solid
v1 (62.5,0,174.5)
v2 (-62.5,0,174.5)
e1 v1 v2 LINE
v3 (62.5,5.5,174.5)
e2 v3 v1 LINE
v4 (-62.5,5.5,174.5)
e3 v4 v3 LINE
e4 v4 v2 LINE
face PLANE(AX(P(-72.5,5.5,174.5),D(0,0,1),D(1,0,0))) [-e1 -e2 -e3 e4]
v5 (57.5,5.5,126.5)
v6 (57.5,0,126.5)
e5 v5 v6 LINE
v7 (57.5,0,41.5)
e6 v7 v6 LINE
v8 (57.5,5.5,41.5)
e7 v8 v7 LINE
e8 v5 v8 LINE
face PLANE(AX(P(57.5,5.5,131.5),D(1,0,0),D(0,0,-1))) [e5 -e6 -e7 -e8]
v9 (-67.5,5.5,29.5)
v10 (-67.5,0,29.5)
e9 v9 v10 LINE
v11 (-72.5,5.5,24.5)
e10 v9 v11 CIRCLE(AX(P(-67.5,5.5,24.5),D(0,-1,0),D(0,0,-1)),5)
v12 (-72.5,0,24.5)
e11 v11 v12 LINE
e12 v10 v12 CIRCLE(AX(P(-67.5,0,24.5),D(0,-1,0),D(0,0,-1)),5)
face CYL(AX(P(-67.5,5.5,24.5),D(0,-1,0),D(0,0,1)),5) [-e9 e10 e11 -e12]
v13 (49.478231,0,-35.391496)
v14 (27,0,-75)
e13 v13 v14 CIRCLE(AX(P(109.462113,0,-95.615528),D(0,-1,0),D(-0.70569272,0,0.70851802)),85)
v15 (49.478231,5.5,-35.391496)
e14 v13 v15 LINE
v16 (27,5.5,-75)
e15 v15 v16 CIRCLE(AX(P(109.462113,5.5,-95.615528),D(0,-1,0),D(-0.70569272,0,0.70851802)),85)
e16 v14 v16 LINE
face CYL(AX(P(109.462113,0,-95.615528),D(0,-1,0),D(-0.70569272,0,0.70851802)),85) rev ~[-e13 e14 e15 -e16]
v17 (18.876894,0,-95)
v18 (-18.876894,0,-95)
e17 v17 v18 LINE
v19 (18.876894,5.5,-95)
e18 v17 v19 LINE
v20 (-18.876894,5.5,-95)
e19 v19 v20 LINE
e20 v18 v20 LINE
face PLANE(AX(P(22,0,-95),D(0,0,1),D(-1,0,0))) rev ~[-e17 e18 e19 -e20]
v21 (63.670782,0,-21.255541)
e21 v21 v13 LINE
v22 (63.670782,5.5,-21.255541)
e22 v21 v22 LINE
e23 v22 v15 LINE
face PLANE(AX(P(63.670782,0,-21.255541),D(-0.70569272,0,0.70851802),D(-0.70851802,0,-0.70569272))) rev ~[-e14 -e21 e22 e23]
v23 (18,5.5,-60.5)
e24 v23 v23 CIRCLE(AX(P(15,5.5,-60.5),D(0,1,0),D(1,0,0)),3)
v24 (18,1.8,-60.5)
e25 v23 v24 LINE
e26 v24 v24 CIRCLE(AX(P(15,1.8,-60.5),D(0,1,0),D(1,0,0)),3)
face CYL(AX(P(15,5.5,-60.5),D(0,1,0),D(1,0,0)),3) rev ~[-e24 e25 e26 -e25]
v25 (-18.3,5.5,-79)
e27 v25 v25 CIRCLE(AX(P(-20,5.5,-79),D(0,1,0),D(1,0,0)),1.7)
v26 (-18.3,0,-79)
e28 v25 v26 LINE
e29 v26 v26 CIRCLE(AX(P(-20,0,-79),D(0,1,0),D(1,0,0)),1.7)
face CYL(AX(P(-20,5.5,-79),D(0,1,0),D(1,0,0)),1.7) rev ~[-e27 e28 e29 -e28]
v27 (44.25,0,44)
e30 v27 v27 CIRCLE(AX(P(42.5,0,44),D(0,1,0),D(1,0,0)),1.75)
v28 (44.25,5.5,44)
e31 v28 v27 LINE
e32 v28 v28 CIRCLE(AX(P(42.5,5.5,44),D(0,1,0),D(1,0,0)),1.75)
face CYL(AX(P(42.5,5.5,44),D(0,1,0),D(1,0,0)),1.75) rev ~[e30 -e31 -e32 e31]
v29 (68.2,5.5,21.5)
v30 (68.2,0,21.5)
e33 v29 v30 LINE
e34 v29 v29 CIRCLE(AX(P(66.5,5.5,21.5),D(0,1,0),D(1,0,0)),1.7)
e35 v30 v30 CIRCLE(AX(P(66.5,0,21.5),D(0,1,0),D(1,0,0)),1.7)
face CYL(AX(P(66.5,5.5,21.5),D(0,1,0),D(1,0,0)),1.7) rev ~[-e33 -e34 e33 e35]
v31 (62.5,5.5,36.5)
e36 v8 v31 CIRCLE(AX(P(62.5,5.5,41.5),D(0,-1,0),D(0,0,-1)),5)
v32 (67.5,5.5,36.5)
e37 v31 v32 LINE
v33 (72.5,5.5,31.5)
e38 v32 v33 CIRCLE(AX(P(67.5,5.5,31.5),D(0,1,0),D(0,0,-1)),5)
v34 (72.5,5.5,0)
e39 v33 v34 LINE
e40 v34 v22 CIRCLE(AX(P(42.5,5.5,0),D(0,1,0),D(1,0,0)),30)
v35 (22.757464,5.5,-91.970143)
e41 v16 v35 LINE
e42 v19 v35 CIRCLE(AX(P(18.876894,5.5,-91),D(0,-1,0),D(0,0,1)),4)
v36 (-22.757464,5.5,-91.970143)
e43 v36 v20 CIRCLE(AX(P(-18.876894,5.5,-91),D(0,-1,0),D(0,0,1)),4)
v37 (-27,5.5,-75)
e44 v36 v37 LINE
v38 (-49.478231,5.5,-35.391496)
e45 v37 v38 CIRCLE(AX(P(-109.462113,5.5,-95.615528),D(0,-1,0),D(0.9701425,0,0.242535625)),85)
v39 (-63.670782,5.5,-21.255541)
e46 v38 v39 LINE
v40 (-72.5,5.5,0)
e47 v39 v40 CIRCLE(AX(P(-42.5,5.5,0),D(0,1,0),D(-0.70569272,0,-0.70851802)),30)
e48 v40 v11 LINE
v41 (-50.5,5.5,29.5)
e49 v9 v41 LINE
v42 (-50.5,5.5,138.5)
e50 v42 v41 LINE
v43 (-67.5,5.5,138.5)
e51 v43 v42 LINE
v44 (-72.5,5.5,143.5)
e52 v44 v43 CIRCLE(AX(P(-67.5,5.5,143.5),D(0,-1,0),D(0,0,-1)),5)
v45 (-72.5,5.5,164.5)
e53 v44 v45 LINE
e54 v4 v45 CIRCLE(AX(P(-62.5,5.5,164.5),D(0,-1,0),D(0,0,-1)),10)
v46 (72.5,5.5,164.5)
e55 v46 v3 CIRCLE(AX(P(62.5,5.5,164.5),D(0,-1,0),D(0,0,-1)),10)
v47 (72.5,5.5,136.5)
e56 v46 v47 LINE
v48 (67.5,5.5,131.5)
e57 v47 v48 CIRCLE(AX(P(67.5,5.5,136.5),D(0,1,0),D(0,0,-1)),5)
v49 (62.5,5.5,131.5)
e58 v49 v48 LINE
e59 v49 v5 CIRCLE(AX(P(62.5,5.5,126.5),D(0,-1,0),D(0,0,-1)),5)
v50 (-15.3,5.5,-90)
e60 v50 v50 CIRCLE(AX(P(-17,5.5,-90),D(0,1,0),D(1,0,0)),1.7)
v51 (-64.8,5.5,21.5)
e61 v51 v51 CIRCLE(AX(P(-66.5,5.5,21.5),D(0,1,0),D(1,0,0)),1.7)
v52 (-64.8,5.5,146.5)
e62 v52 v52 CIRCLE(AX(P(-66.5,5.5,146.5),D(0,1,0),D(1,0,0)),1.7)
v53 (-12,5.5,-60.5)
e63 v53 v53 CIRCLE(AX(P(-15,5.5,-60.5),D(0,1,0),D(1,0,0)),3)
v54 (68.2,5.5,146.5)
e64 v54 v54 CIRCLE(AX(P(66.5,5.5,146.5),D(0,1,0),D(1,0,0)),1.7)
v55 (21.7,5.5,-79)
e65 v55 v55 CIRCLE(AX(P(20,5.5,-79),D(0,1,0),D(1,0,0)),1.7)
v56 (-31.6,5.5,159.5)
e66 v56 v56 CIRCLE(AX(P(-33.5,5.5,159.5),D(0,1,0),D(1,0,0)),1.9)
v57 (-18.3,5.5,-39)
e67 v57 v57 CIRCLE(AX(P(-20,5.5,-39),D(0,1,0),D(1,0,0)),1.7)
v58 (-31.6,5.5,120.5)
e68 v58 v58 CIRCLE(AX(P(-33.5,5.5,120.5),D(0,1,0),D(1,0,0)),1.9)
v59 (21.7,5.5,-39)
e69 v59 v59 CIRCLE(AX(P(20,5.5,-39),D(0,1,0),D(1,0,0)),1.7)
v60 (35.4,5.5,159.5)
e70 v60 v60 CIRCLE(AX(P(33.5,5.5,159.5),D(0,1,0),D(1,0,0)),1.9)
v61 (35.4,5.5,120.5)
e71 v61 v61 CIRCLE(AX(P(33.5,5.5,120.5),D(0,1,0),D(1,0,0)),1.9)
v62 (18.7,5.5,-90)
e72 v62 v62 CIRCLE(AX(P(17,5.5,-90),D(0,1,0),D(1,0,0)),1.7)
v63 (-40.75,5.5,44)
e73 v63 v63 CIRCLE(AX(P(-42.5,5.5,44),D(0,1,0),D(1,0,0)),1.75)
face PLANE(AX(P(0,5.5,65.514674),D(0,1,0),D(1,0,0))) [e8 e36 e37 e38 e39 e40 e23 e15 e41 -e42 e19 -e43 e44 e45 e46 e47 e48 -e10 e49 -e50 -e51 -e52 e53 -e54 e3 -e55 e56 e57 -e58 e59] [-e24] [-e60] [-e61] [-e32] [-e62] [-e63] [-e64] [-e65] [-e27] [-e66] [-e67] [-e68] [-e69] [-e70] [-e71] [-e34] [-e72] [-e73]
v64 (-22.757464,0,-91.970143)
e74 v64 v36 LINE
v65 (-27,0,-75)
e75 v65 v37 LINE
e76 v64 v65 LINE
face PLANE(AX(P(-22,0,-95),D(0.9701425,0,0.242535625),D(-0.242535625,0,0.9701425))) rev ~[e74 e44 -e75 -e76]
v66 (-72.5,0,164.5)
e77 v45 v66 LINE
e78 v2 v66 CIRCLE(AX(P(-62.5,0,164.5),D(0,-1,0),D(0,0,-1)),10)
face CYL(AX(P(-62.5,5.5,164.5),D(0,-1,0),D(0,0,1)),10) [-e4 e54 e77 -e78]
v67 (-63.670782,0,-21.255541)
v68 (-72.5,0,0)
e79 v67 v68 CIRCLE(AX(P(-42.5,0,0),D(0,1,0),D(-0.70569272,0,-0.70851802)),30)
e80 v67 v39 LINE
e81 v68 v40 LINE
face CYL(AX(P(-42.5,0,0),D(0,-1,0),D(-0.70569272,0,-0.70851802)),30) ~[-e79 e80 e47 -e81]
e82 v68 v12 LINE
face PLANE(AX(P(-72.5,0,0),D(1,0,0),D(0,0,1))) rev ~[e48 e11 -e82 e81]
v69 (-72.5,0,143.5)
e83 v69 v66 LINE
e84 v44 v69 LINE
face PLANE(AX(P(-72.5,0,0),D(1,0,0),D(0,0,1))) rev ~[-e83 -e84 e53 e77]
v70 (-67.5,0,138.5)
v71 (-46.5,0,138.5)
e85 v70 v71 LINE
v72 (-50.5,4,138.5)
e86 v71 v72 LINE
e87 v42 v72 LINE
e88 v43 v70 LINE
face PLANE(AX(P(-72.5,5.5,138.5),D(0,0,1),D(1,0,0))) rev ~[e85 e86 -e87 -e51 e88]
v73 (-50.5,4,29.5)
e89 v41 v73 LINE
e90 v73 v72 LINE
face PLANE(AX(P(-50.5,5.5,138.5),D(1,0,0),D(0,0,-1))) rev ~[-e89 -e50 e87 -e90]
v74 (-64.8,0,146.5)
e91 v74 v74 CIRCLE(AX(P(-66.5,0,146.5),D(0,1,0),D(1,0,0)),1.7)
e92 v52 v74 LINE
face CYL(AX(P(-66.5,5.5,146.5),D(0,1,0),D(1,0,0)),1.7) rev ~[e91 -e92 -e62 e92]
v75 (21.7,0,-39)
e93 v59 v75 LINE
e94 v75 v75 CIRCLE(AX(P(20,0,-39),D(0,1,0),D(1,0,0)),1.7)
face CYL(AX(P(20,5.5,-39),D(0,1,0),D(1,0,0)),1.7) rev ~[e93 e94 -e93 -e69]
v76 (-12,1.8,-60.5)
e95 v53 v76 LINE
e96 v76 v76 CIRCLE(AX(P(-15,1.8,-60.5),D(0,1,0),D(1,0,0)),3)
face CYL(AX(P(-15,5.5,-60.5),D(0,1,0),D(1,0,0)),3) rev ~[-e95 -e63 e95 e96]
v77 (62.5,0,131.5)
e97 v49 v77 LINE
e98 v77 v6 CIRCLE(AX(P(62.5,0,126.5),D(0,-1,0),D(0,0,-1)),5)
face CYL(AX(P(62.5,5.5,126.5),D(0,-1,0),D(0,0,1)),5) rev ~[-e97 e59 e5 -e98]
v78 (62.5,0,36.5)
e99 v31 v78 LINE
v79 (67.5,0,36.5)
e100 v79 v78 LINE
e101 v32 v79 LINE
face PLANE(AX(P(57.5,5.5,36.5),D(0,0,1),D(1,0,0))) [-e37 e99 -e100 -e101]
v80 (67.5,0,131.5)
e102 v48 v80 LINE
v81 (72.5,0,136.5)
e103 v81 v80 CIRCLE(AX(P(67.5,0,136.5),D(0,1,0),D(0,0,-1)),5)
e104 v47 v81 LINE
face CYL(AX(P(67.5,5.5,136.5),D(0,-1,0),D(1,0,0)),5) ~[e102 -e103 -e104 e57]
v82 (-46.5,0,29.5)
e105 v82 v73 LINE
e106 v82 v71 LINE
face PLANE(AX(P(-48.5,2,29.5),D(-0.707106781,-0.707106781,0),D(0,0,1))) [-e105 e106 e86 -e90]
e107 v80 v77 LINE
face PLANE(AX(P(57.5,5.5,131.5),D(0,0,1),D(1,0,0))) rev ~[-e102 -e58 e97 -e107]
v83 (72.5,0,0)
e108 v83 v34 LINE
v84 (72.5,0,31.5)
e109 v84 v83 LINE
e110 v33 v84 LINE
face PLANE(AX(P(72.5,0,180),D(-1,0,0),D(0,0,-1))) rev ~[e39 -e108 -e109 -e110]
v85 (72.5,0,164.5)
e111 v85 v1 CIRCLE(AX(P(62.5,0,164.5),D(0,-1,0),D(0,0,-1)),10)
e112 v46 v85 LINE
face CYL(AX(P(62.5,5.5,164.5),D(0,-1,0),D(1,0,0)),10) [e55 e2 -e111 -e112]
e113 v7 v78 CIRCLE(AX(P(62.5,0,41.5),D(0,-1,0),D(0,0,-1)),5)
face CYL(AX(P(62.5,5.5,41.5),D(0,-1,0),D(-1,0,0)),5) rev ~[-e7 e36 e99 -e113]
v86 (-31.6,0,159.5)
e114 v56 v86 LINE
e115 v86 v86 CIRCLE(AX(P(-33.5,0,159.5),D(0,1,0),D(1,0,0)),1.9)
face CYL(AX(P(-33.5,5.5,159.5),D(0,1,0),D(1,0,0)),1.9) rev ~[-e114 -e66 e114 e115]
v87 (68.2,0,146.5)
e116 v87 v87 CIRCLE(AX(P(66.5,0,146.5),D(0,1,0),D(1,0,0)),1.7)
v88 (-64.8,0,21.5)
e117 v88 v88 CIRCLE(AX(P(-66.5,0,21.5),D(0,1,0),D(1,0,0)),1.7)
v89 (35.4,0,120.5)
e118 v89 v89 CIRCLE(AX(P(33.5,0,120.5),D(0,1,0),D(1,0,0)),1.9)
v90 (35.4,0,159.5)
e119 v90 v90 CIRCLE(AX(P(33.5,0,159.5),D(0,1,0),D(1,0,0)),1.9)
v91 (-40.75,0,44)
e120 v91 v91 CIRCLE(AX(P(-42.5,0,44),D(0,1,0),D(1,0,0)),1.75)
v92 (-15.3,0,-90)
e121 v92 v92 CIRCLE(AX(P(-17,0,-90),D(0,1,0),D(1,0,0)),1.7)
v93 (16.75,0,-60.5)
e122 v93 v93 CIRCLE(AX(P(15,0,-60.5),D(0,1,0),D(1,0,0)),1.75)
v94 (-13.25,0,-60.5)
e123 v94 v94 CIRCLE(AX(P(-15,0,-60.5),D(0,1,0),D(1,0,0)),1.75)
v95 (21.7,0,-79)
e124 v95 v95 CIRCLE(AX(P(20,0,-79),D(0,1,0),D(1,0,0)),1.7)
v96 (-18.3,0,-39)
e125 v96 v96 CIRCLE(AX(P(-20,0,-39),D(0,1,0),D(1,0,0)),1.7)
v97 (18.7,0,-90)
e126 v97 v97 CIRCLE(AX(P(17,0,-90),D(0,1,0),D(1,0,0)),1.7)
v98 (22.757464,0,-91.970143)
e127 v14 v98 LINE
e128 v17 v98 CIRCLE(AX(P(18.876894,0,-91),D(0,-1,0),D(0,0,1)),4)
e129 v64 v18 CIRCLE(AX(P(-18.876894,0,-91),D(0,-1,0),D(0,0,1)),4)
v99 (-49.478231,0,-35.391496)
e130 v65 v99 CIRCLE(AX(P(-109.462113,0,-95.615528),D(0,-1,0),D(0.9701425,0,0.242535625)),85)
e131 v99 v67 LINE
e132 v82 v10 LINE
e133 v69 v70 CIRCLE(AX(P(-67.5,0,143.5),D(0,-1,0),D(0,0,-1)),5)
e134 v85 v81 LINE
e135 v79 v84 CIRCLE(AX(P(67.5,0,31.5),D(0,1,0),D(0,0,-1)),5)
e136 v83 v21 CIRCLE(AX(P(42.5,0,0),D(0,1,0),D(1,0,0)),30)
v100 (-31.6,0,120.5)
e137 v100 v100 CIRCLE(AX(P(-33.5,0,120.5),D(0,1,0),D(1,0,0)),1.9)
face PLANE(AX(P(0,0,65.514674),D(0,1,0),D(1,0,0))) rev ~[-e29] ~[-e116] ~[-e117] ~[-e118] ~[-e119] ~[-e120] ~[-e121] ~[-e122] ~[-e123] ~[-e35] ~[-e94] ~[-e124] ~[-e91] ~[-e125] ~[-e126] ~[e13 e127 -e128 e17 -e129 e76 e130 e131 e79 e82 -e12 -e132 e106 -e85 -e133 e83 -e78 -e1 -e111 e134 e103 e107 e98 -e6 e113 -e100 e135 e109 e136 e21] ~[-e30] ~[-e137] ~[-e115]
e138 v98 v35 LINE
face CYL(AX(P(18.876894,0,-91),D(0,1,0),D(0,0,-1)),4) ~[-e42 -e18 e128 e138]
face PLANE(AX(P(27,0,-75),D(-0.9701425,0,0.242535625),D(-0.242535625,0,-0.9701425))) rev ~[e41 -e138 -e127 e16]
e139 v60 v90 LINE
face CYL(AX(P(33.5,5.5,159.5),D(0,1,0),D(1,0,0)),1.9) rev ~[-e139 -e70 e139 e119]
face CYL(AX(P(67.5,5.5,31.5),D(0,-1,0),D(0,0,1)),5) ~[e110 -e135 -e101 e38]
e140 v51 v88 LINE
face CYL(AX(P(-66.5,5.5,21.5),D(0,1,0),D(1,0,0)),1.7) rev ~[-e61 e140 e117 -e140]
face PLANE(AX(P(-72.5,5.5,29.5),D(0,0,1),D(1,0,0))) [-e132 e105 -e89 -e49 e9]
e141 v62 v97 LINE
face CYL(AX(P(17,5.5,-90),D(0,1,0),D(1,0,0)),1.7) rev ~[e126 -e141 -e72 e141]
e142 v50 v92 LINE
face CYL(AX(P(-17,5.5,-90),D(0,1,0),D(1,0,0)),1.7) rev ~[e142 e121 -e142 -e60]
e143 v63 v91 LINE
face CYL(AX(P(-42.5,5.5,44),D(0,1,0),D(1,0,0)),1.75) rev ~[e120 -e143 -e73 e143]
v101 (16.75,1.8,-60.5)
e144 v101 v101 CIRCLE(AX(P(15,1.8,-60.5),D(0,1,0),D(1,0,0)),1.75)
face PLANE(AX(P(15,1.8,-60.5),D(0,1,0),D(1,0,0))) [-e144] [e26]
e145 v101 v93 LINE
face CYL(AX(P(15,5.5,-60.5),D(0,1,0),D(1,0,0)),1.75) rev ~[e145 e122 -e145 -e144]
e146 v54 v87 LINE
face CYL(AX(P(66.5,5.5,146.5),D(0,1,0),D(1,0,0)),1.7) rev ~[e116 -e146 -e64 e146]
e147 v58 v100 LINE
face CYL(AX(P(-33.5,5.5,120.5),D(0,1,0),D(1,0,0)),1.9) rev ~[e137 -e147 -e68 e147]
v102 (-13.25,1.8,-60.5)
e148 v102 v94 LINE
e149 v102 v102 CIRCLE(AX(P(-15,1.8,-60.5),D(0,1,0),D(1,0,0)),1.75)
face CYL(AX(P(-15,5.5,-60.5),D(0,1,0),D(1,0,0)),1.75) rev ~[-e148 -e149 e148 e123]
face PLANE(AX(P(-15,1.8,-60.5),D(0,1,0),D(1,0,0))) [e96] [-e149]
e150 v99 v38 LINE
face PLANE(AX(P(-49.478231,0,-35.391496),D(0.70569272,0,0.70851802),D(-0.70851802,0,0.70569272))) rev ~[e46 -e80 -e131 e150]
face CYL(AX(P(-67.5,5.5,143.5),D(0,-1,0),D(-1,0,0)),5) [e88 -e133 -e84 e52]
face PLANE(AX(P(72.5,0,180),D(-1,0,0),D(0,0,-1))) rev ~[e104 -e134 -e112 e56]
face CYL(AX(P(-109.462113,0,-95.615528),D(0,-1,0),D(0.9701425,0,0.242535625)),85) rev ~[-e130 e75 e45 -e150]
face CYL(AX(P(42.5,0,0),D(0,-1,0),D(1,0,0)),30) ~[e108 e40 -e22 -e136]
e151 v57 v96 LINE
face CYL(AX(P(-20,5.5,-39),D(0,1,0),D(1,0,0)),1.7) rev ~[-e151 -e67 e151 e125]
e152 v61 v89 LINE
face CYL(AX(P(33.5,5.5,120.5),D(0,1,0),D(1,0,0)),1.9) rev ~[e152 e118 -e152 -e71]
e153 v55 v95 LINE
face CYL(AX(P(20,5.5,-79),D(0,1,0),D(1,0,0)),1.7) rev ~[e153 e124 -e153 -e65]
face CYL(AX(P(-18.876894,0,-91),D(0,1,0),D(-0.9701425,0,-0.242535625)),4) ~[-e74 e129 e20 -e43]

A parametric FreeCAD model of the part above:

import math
import FreeCAD as App
import Part
import Sketcher


def edges_at(feature, points):
    """Names of the edges that pass closest to the given points."""
    edges = feature.Shape.Edges
    near = lambda p: min(range(len(edges)), key=lambda i: edges[i].distToShape(Part.Vertex(*p))[0])
    return sorted({f"Edge{near(p) + 1}" for p in points})


def add_polygon(sketch, points):
    """Adds a closed chain of lines whose ends are joined by coincident constraints."""
    first, n = sketch.GeometryCount, len(points)
    for a, b in zip(points, points[1:] + points[:1]):
        sketch.addGeometry(Part.LineSegment(App.Vector(*a, 0), App.Vector(*b, 0)), False)
    for i in range(n):
        sketch.addConstraint(Sketcher.Constraint("Coincident", first + i, 2, first + (i + 1) % n, 1))

doc = App.newDocument("Part")
body = doc.addObject("PartDesign::Body", "Body")

# Sketch on XZ plane
sketch1 = doc.addObject("Sketcher::SketchObject", "Sketch")
body.addObject(sketch1)
sketch1.AttachmentSupport = (doc.XZ_Plane, [""])
sketch1.MapMode = "FlatFace"
sketch1.addGeometry([
    Part.LineSegment(App.Vector(-72.5, 0, 0), App.Vector(-72.5, 180, 0)),  # 0
    Part.ArcOfCircle(Part.Circle(App.Vector(-62.5, 180, 0), App.Vector(0, 0, 1), 10), math.radians(90), math.radians(180)),  # 1
    Part.LineSegment(App.Vector(-62.5, 190, 0), App.Vector(-49.196112, 190, 0)),  # 2
    Part.ArcOfCircle(Part.Circle(App.Vector(-49.196112, 195, 0), App.Vector(0, 0, 1), 5), math.radians(-90), math.radians(-52.52382)),  # 3
    Part.LineSegment(App.Vector(-46.153955, 191.031968, 0), App.Vector(-18.846045, 211.968032, 0)),  # 4
    Part.ArcOfCircle(Part.Circle(App.Vector(-15.803888, 208, 0), App.Vector(0, 0, 1), 5), math.radians(90), math.radians(127.47618)),  # 5
    Part.LineSegment(App.Vector(-15.803888, 213, 0), App.Vector(15.803888, 213, 0)),  # 6
    Part.ArcOfCircle(Part.Circle(App.Vector(15.803888, 208, 0), App.Vector(0, 0, 1), 5), math.radians(52.52382), math.radians(90)),  # 7
    Part.LineSegment(App.Vector(18.846045, 211.968032, 0), App.Vector(46.153955, 191.031968, 0)),  # 8
    Part.ArcOfCircle(Part.Circle(App.Vector(49.196112, 195, 0), App.Vector(0, 0, 1), 5), math.radians(-127.47618), math.radians(-90)),  # 9
    Part.LineSegment(App.Vector(49.196112, 190, 0), App.Vector(62.5, 190, 0)),  # 10
    Part.ArcOfCircle(Part.Circle(App.Vector(62.5, 180, 0), App.Vector(0, 0, 1), 10), math.radians(0), math.radians(90)),  # 11
    Part.LineSegment(App.Vector(72.5, 180, 0), App.Vector(72.5, 0, 0)),  # 12
    Part.ArcOfCircle(Part.Circle(App.Vector(42.5, 0, 0), App.Vector(0, 0, 1), 30), math.radians(-45.114465), math.radians(0)),  # 13
    Part.LineSegment(App.Vector(63.670782, -21.255541, 0), App.Vector(49.478231, -35.391496, 0)),  # 14
    Part.ArcOfCircle(Part.Circle(App.Vector(109.462113, -95.615528, 0), App.Vector(0, 0, 1), 85), math.radians(134.885535), math.radians(165.963757)),  # 15
    Part.LineSegment(App.Vector(27, -75, 0), App.Vector(22, -95, 0)),  # 16
    Part.LineSegment(App.Vector(22, -95, 0), App.Vector(-22, -95, 0)),  # 17
    Part.LineSegment(App.Vector(-22, -95, 0), App.Vector(-27, -75, 0)),  # 18
    Part.ArcOfCircle(Part.Circle(App.Vector(-109.462113, -95.615528, 0), App.Vector(0, 0, 1), 85), math.radians(14.036243), math.radians(45.114465)),  # 19
    Part.LineSegment(App.Vector(-49.478231, -35.391496, 0), App.Vector(-63.670782, -21.255541, 0)),  # 20
    Part.ArcOfCircle(Part.Circle(App.Vector(-42.5, 0, 0), App.Vector(0, 0, 1), 30), math.radians(180), math.radians(225.114465)),  # 21
], False)
sketch1.addConstraint([
    Sketcher.Constraint("Tangent", 0, 2, 1, 2),
    Sketcher.Constraint("Tangent", 1, 1, 2, 1),
    Sketcher.Constraint("Tangent", 2, 2, 3, 1),
    Sketcher.Constraint("Tangent", 3, 2, 4, 1),
    Sketcher.Constraint("Tangent", 4, 2, 5, 2),
    Sketcher.Constraint("Tangent", 5, 1, 6, 1),
    Sketcher.Constraint("Tangent", 6, 2, 7, 2),
    Sketcher.Constraint("Tangent", 7, 1, 8, 1),
    Sketcher.Constraint("Tangent", 8, 2, 9, 1),
    Sketcher.Constraint("Tangent", 9, 2, 10, 1),
    Sketcher.Constraint("Tangent", 10, 2, 11, 2),
    Sketcher.Constraint("Tangent", 11, 1, 12, 1),
    Sketcher.Constraint("Tangent", 12, 2, 13, 2),
    Sketcher.Constraint("Tangent", 13, 1, 14, 1),
    Sketcher.Constraint("Tangent", 14, 2, 15, 1),
    Sketcher.Constraint("Tangent", 15, 2, 16, 1),
    Sketcher.Constraint("Coincident", 16, 2, 17, 1),
    Sketcher.Constraint("Coincident", 17, 2, 18, 1),
    Sketcher.Constraint("Tangent", 18, 2, 19, 1),
    Sketcher.Constraint("Tangent", 19, 2, 20, 1),
    Sketcher.Constraint("Tangent", 20, 2, 21, 2),
    Sketcher.Constraint("Tangent", 21, 1, 0, 1),
    Sketcher.Constraint("Vertical", 0),
    Sketcher.Constraint("Horizontal", 2),
    Sketcher.Constraint("Horizontal", 6),
    Sketcher.Constraint("Horizontal", 10),
    Sketcher.Constraint("Vertical", 12),
    Sketcher.Constraint("Horizontal", 17),
    Sketcher.Constraint("Equal", 3, 5),
    Sketcher.Constraint("Equal", 5, 7),
    Sketcher.Constraint("Equal", 7, 9),
    Sketcher.Constraint("Equal", 1, 11),
    Sketcher.Constraint("Equal", 15, 19),
    Sketcher.Constraint("Equal", 13, 21),
    Sketcher.Constraint("Symmetric", 13, 3, 21, 3, -1, 1),
    Sketcher.Constraint("Symmetric", 3, 3, 9, 3, -2),
    Sketcher.Constraint("Symmetric", 15, 3, 19, 3, -2),
    Sketcher.Constraint("PointOnObject", 13, 3, -1),
    Sketcher.Constraint("Horizontal", 4, 2, 7, 1),
    Sketcher.Constraint("Horizontal", 15, 2, 18, 2),
    Sketcher.Constraint("Radius", 1, 10.0),
    Sketcher.Constraint("Radius", 3, 5.0),
    Sketcher.Constraint("Radius", 13, 30.0),
    Sketcher.Constraint("Radius", 15, 85.0),
    Sketcher.Constraint("DistanceX", 17, 2, 17, 1, 44.0),
    Sketcher.Constraint("DistanceY", 0, 1, 0, 2, 180.0),
    Sketcher.Constraint("DistanceY", -1, 1, 5, 3, 208.0),
    Sketcher.Constraint("DistanceX", -1, 1, 15, 2, 27.0),
    Sketcher.Constraint("DistanceY", 15, 2, -1, 1, 75.0),
    Sketcher.Constraint("DistanceY", 16, 2, -1, 1, 95.0),
    Sketcher.Constraint("DistanceX", 3, 3, 7, 3, 65.0),
    Sketcher.Constraint("DistanceX", 1, 3, 11, 3, 125.0),
    Sketcher.Constraint("DistanceX", 9, 3, 15, 3, 60.266),
])
pad1 = doc.addObject("PartDesign::Pad", "Pad")
body.addObject(pad1)
pad1.Profile = sketch1
pad1.Length = 5.5
pad1.Reversed = True

# Sketch on XZ plane
sketch2 = doc.addObject("Sketcher::SketchObject", "Sketch001")
body.addObject(sketch2)
sketch2.AttachmentSupport = (doc.XZ_Plane, [""])
sketch2.MapMode = "FlatFace"
sketch2.AttachmentOffset = App.Placement(App.Vector(0, 0, -5.5), App.Rotation())
sketch2.addGeometry(Part.Circle(App.Vector(17, -90, 0), App.Vector(0, 0, 1), 1.7), False)
sketch2.addConstraint([
    Sketcher.Constraint("Diameter", 0, 3.4),
    Sketcher.Constraint("DistanceX", -1, 1, 0, 3, 17.0),
    Sketcher.Constraint("DistanceY", 0, 3, -1, 1, 90.0),
])
pocket1 = doc.addObject("PartDesign::Pocket", "Pocket")
body.addObject(pocket1)
pocket1.Profile = sketch2
pocket1.Type = "UpToFirst"
pocket1.Reversed = True

# Sketch on XZ plane
sketch3 = doc.addObject("Sketcher::SketchObject", "Sketch002")
body.addObject(sketch3)
sketch3.AttachmentSupport = (doc.XZ_Plane, [""])
sketch3.MapMode = "FlatFace"
sketch3.AttachmentOffset = App.Placement(App.Vector(0, 0, -5.5), App.Rotation())
sketch3.addGeometry(Part.Circle(App.Vector(66.5, 146.5, 0), App.Vector(0, 0, 1), 1.7), False)
sketch3.addConstraint([
    Sketcher.Constraint("Diameter", 0, 3.4),
    Sketcher.Constraint("DistanceX", -1, 1, 0, 3, 66.5),
    Sketcher.Constraint("DistanceY", -1, 1, 0, 3, 146.5),
])
pocket2 = doc.addObject("PartDesign::Pocket", "Pocket001")
body.addObject(pocket2)
pocket2.Profile = sketch3
pocket2.Type = "UpToFirst"
pocket2.Reversed = True

# Sketch on XZ plane
sketch4 = doc.addObject("Sketcher::SketchObject", "Sketch003")
body.addObject(sketch4)
sketch4.AttachmentSupport = (doc.XZ_Plane, [""])
sketch4.MapMode = "FlatFace"
sketch4.AttachmentOffset = App.Placement(App.Vector(0, 0, -5.5), App.Rotation())
sketch4.addGeometry(Part.Circle(App.Vector(66.5, 116.5, 0), App.Vector(0, 0, 1), 1.7), False)
sketch4.addConstraint([
    Sketcher.Constraint("Diameter", 0, 3.4),
    Sketcher.Constraint("DistanceX", -1, 1, 0, 3, 66.5),
    Sketcher.Constraint("DistanceY", -1, 1, 0, 3, 116.5),
])
pocket3 = doc.addObject("PartDesign::Pocket", "Pocket002")
body.addObject(pocket3)
pocket3.Profile = sketch4
pocket3.Type = "UpToFirst"
pocket3.Reversed = True

# Sketch on XZ plane
sketch5 = doc.addObject("Sketcher::SketchObject", "Sketch004")
body.addObject(sketch5)
sketch5.AttachmentSupport = (doc.XZ_Plane, [""])
sketch5.MapMode = "FlatFace"
sketch5.AttachmentOffset = App.Placement(App.Vector(0, 0, -5.5), App.Rotation())
sketch5.addGeometry(Part.Circle(App.Vector(66.5, 51.5, 0), App.Vector(0, 0, 1), 1.7), False)
sketch5.addConstraint([
    Sketcher.Constraint("Diameter", 0, 3.4),
    Sketcher.Constraint("DistanceX", -1, 1, 0, 3, 66.5),
    Sketcher.Constraint("DistanceY", -1, 1, 0, 3, 51.5),
])
pocket4 = doc.addObject("PartDesign::Pocket", "Pocket003")
body.addObject(pocket4)
pocket4.Profile = sketch5
pocket4.Type = "UpToFirst"
pocket4.Reversed = True

# Sketch on XZ plane
sketch6 = doc.addObject("Sketcher::SketchObject", "Sketch005")
body.addObject(sketch6)
sketch6.AttachmentSupport = (doc.XZ_Plane, [""])
sketch6.MapMode = "FlatFace"
sketch6.AttachmentOffset = App.Placement(App.Vector(0, 0, -5.5), App.Rotation())
sketch6.addGeometry(Part.Circle(App.Vector(66.5, 21.5, 0), App.Vector(0, 0, 1), 1.7), False)
sketch6.addConstraint([
    Sketcher.Constraint("Diameter", 0, 3.4),
    Sketcher.Constraint("DistanceX", -1, 1, 0, 3, 66.5),
    Sketcher.Constraint("DistanceY", -1, 1, 0, 3, 21.5),
])
pocket5 = doc.addObject("PartDesign::Pocket", "Pocket004")
body.addObject(pocket5)
pocket5.Profile = sketch6
pocket5.Type = "UpToFirst"
pocket5.Reversed = True

# Sketch on XZ plane
sketch7 = doc.addObject("Sketcher::SketchObject", "Sketch006")
body.addObject(sketch7)
sketch7.AttachmentSupport = (doc.XZ_Plane, [""])
sketch7.MapMode = "FlatFace"
sketch7.AttachmentOffset = App.Placement(App.Vector(0, 0, -5.5), App.Rotation())
sketch7.addGeometry(Part.Circle(App.Vector(-66.5, 21.5, 0), App.Vector(0, 0, 1), 1.7), False)
sketch7.addConstraint([
    Sketcher.Constraint("Diameter", 0, 3.4),
    Sketcher.Constraint("DistanceX", 0, 3, -1, 1, 66.5),
    Sketcher.Constraint("DistanceY", -1, 1, 0, 3, 21.5),
])
pocket6 = doc.addObject("PartDesign::Pocket", "Pocket005")
body.addObject(pocket6)
pocket6.Profile = sketch7
pocket6.Type = "UpToFirst"
pocket6.Reversed = True

# Sketch on XZ plane
sketch8 = doc.addObject("Sketcher::SketchObject", "Sketch007")
body.addObject(sketch8)
sketch8.AttachmentSupport = (doc.XZ_Plane, [""])
sketch8.MapMode = "FlatFace"
sketch8.AttachmentOffset = App.Placement(App.Vector(0, 0, -5.5), App.Rotation())
sketch8.addGeometry(Part.Circle(App.Vector(-66.5, 51.5, 0), App.Vector(0, 0, 1), 1.7), False)
sketch8.addConstraint([
    Sketcher.Constraint("Diameter", 0, 3.4),
    Sketcher.Constraint("DistanceX", 0, 3, -1, 1, 66.5),
    Sketcher.Constraint("DistanceY", -1, 1, 0, 3, 51.5),
])
pocket7 = doc.addObject("PartDesign::Pocket", "Pocket006")
body.addObject(pocket7)
pocket7.Profile = sketch8
pocket7.Type = "UpToFirst"
pocket7.Reversed = True

# Sketch on XZ plane
sketch9 = doc.addObject("Sketcher::SketchObject", "Sketch008")
body.addObject(sketch9)
sketch9.AttachmentSupport = (doc.XZ_Plane, [""])
sketch9.MapMode = "FlatFace"
sketch9.AttachmentOffset = App.Placement(App.Vector(0, 0, -5.5), App.Rotation())
sketch9.addGeometry(Part.Circle(App.Vector(-66.5, 116.5, 0), App.Vector(0, 0, 1), 1.7), False)
sketch9.addConstraint([
    Sketcher.Constraint("Diameter", 0, 3.4),
    Sketcher.Constraint("DistanceX", 0, 3, -1, 1, 66.5),
    Sketcher.Constraint("DistanceY", -1, 1, 0, 3, 116.5),
])
pocket8 = doc.addObject("PartDesign::Pocket", "Pocket007")
body.addObject(pocket8)
pocket8.Profile = sketch9
pocket8.Type = "UpToFirst"
pocket8.Reversed = True

# Sketch on XZ plane
sketch10 = doc.addObject("Sketcher::SketchObject", "Sketch009")
body.addObject(sketch10)
sketch10.AttachmentSupport = (doc.XZ_Plane, [""])
sketch10.MapMode = "FlatFace"
sketch10.AttachmentOffset = App.Placement(App.Vector(0, 0, -5.5), App.Rotation())
sketch10.addGeometry(Part.Circle(App.Vector(-66.5, 146.5, 0), App.Vector(0, 0, 1), 1.7), False)
sketch10.addConstraint([
    Sketcher.Constraint("Diameter", 0, 3.4),
    Sketcher.Constraint("DistanceX", 0, 3, -1, 1, 66.5),
    Sketcher.Constraint("DistanceY", -1, 1, 0, 3, 146.5),
])
pocket9 = doc.addObject("PartDesign::Pocket", "Pocket008")
body.addObject(pocket9)
pocket9.Profile = sketch10
pocket9.Type = "UpToFirst"
pocket9.Reversed = True

# Sketch on XZ plane
sketch11 = doc.addObject("Sketcher::SketchObject", "Sketch010")
body.addObject(sketch11)
sketch11.AttachmentSupport = (doc.XZ_Plane, [""])
sketch11.MapMode = "FlatFace"
sketch11.AttachmentOffset = App.Placement(App.Vector(0, 0, -5.5), App.Rotation())
sketch11.addGeometry(Part.Circle(App.Vector(-17, -90, 0), App.Vector(0, 0, 1), 1.7), False)
sketch11.addConstraint([
    Sketcher.Constraint("Diameter", 0, 3.4),
    Sketcher.Constraint("DistanceX", 0, 3, -1, 1, 17.0),
    Sketcher.Constraint("DistanceY", 0, 3, -1, 1, 90.0),
])
pocket10 = doc.addObject("PartDesign::Pocket", "Pocket009")
body.addObject(pocket10)
pocket10.Profile = sketch11
pocket10.Type = "UpToFirst"
pocket10.Reversed = True
doc.recompute()

fillet = doc.addObject("PartDesign::Fillet", "Fillet")
body.addObject(fillet)
fillet.Base = (pocket10, edges_at(pocket10, [(22, 2.75, -95), (-22, 2.75, -95)]))
fillet.Radius = 4

# Sketch on XZ plane
sketch12 = doc.addObject("Sketcher::SketchObject", "Sketch011")
body.addObject(sketch12)
sketch12.AttachmentSupport = (doc.XZ_Plane, [""])
sketch12.MapMode = "FlatFace"
sketch12.AttachmentOffset = App.Placement(App.Vector(0, 0, -5.5), App.Rotation())
add_polygon(sketch12, [(-72.5, 29.5), (-72.5, 138.5), (-50.5, 138.5), (-50.5, 29.5)])  # lines 0-3
sketch12.addConstraint([
    Sketcher.Constraint("Vertical", 0),
    Sketcher.Constraint("Horizontal", 1),
    Sketcher.Constraint("Vertical", 2),
    Sketcher.Constraint("Horizontal", 3),
    Sketcher.Constraint("DistanceX", 1, 1, 1, 2, 22.0),
    Sketcher.Constraint("DistanceY", 0, 1, 0, 2, 109.0),
    Sketcher.Constraint("DistanceX", 0, 2, -1, 1, 72.5),
    Sketcher.Constraint("DistanceY", -1, 1, 0, 2, 138.5),
])
pocket11 = doc.addObject("PartDesign::Pocket", "Pocket010")
body.addObject(pocket11)
pocket11.Profile = sketch12
pocket11.Type = "UpToFirst"
pocket11.Reversed = True

# Sketch on XZ plane
sketch13 = doc.addObject("Sketcher::SketchObject", "Sketch012")
body.addObject(sketch13)
sketch13.AttachmentSupport = (doc.XZ_Plane, [""])
sketch13.MapMode = "FlatFace"
sketch13.AttachmentOffset = App.Placement(App.Vector(0, 0, -5.5), App.Rotation())
add_polygon(sketch13, [(57.5, 36.5), (57.5, 131.5), (72.5, 131.5), (72.5, 36.5)])  # lines 0-3
sketch13.addConstraint([
    Sketcher.Constraint("Vertical", 0),
    Sketcher.Constraint("Horizontal", 1),
    Sketcher.Constraint("Vertical", 2),
    Sketcher.Constraint("Horizontal", 3),
    Sketcher.Constraint("DistanceX", 1, 1, 1, 2, 15.0),
    Sketcher.Constraint("DistanceY", 0, 1, 0, 2, 95.0),
    Sketcher.Constraint("DistanceX", -1, 1, 0, 2, 57.5),
    Sketcher.Constraint("DistanceY", -1, 1, 0, 2, 131.5),
])
pocket12 = doc.addObject("PartDesign::Pocket", "Pocket011")
body.addObject(pocket12)
pocket12.Profile = sketch13
pocket12.Type = "UpToFirst"
pocket12.Reversed = True

# Sketch on XZ plane
sketch14 = doc.addObject("Sketcher::SketchObject", "Sketch013")
body.addObject(sketch14)
sketch14.AttachmentSupport = (doc.XZ_Plane, [""])
sketch14.MapMode = "FlatFace"
sketch14.AttachmentOffset = App.Placement(App.Vector(0, 0, -5.5), App.Rotation())
add_polygon(sketch14, [(-72.5, 174.5), (-72.5, 213), (72.5, 213), (72.5, 174.5)])  # lines 0-3
sketch14.addConstraint([
    Sketcher.Constraint("Vertical", 0),
    Sketcher.Constraint("Horizontal", 1),
    Sketcher.Constraint("Vertical", 2),
    Sketcher.Constraint("Horizontal", 3),
    Sketcher.Constraint("DistanceX", 1, 1, 1, 2, 145.0),
    Sketcher.Constraint("DistanceY", 0, 1, 0, 2, 38.5),
    Sketcher.Constraint("DistanceY", -1, 1, 0, 2, 213.0),
    Sketcher.Constraint("DistanceX", 0, 2, -1, 1, 72.5),
])
pocket13 = doc.addObject("PartDesign::Pocket", "Pocket012")
body.addObject(pocket13)
pocket13.Profile = sketch14
pocket13.Type = "UpToFirst"
pocket13.Reversed = True
doc.recompute()

fillet2 = doc.addObject("PartDesign::Fillet", "Fillet001")
body.addObject(fillet2)
fillet2.Base = (pocket13, edges_at(pocket13, [(72.5, 2.75, 174.5), (-72.5, 2.75, 174.5)]))
fillet2.Radius = 10
doc.recompute()

fillet3 = doc.addObject("PartDesign::Fillet", "Fillet002")
body.addObject(fillet3)
fillet3.Base = (fillet2, edges_at(fillet2, [
    (-72.5, 2.75, 138.5),
    (-72.5, 2.75, 29.5),
    (72.5, 2.75, 36.5),
    (72.5, 2.75, 131.5),
    (57.5, 2.75, 131.5),
    (57.5, 2.75, 36.5),
]))
fillet3.Radius = 5

# Sketch on XZ plane
sketch15 = doc.addObject("Sketcher::SketchObject", "Sketch014")
body.addObject(sketch15)
sketch15.AttachmentSupport = (doc.XZ_Plane, [""])
sketch15.MapMode = "FlatFace"
sketch15.AttachmentOffset = App.Placement(App.Vector(0, 0, -5.5), App.Rotation())
sketch15.addGeometry(Part.Circle(App.Vector(-20, -79, 0), App.Vector(0, 0, 1), 1.7), False)
sketch15.addConstraint([
    Sketcher.Constraint("Diameter", 0, 3.4),
    Sketcher.Constraint("DistanceX", 0, 3, -1, 1, 20.0),
    Sketcher.Constraint("DistanceY", 0, 3, -1, 1, 79.0),
])
pocket14 = doc.addObject("PartDesign::Pocket", "Pocket013")
body.addObject(pocket14)
pocket14.Profile = sketch15
pocket14.Type = "UpToFirst"
pocket14.Reversed = True

# Sketch on XZ plane
sketch16 = doc.addObject("Sketcher::SketchObject", "Sketch015")
body.addObject(sketch16)
sketch16.AttachmentSupport = (doc.XZ_Plane, [""])
sketch16.MapMode = "FlatFace"
sketch16.AttachmentOffset = App.Placement(App.Vector(0, 0, -5.5), App.Rotation())
sketch16.addGeometry(Part.Circle(App.Vector(-20, -39, 0), App.Vector(0, 0, 1), 1.7), False)
sketch16.addConstraint([
    Sketcher.Constraint("Diameter", 0, 3.4),
    Sketcher.Constraint("DistanceX", 0, 3, -1, 1, 20.0),
    Sketcher.Constraint("DistanceY", 0, 3, -1, 1, 39.0),
])
pocket15 = doc.addObject("PartDesign::Pocket", "Pocket014")
body.addObject(pocket15)
pocket15.Profile = sketch16
pocket15.Type = "UpToFirst"
pocket15.Reversed = True

# Sketch on XZ plane
sketch17 = doc.addObject("Sketcher::SketchObject", "Sketch016")
body.addObject(sketch17)
sketch17.AttachmentSupport = (doc.XZ_Plane, [""])
sketch17.MapMode = "FlatFace"
sketch17.AttachmentOffset = App.Placement(App.Vector(0, 0, -5.5), App.Rotation())
sketch17.addGeometry(Part.Circle(App.Vector(20, -39, 0), App.Vector(0, 0, 1), 1.7), False)
sketch17.addConstraint([
    Sketcher.Constraint("Diameter", 0, 3.4),
    Sketcher.Constraint("DistanceX", -1, 1, 0, 3, 20.0),
    Sketcher.Constraint("DistanceY", 0, 3, -1, 1, 39.0),
])
pocket16 = doc.addObject("PartDesign::Pocket", "Pocket015")
body.addObject(pocket16)
pocket16.Profile = sketch17
pocket16.Type = "UpToFirst"
pocket16.Reversed = True

# Sketch on XZ plane
sketch18 = doc.addObject("Sketcher::SketchObject", "Sketch017")
body.addObject(sketch18)
sketch18.AttachmentSupport = (doc.XZ_Plane, [""])
sketch18.MapMode = "FlatFace"
sketch18.AttachmentOffset = App.Placement(App.Vector(0, 0, -5.5), App.Rotation())
sketch18.addGeometry(Part.Circle(App.Vector(20, -79, 0), App.Vector(0, 0, 1), 1.7), False)
sketch18.addConstraint([
    Sketcher.Constraint("Diameter", 0, 3.4),
    Sketcher.Constraint("DistanceX", -1, 1, 0, 3, 20.0),
    Sketcher.Constraint("DistanceY", 0, 3, -1, 1, 79.0),
])
pocket17 = doc.addObject("PartDesign::Pocket", "Pocket016")
body.addObject(pocket17)
pocket17.Profile = sketch18
pocket17.Type = "UpToFirst"
pocket17.Reversed = True

# Sketch on XZ plane
sketch19 = doc.addObject("Sketcher::SketchObject", "Sketch018")
body.addObject(sketch19)
sketch19.AttachmentSupport = (doc.XZ_Plane, [""])
sketch19.MapMode = "FlatFace"
sketch19.AttachmentOffset = App.Placement(App.Vector(0, 0, -5.5), App.Rotation())
sketch19.addGeometry(Part.Circle(App.Vector(33.5, 120.5, 0), App.Vector(0, 0, 1), 1.9), False)
sketch19.addConstraint([
    Sketcher.Constraint("Diameter", 0, 3.8),
    Sketcher.Constraint("DistanceX", -1, 1, 0, 3, 33.5),
    Sketcher.Constraint("DistanceY", -1, 1, 0, 3, 120.5),
])
pocket18 = doc.addObject("PartDesign::Pocket", "Pocket017")
body.addObject(pocket18)
pocket18.Profile = sketch19
pocket18.Type = "UpToFirst"
pocket18.Reversed = True

# Sketch on XZ plane
sketch20 = doc.addObject("Sketcher::SketchObject", "Sketch019")
body.addObject(sketch20)
sketch20.AttachmentSupport = (doc.XZ_Plane, [""])
sketch20.MapMode = "FlatFace"
sketch20.AttachmentOffset = App.Placement(App.Vector(0, 0, -5.5), App.Rotation())
sketch20.addGeometry(Part.Circle(App.Vector(33.5, 159.5, 0), App.Vector(0, 0, 1), 1.9), False)
sketch20.addConstraint([
    Sketcher.Constraint("Diameter", 0, 3.8),
    Sketcher.Constraint("DistanceX", -1, 1, 0, 3, 33.5),
    Sketcher.Constraint("DistanceY", -1, 1, 0, 3, 159.5),
])
pocket19 = doc.addObject("PartDesign::Pocket", "Pocket018")
body.addObject(pocket19)
pocket19.Profile = sketch20
pocket19.Type = "UpToFirst"
pocket19.Reversed = True

# Sketch on XZ plane
sketch21 = doc.addObject("Sketcher::SketchObject", "Sketch020")
body.addObject(sketch21)
sketch21.AttachmentSupport = (doc.XZ_Plane, [""])
sketch21.MapMode = "FlatFace"
sketch21.AttachmentOffset = App.Placement(App.Vector(0, 0, -5.5), App.Rotation())
sketch21.addGeometry(Part.Circle(App.Vector(-33.5, 159.5, 0), App.Vector(0, 0, 1), 1.9), False)
sketch21.addConstraint([
    Sketcher.Constraint("Diameter", 0, 3.8),
    Sketcher.Constraint("DistanceX", 0, 3, -1, 1, 33.5),
    Sketcher.Constraint("DistanceY", -1, 1, 0, 3, 159.5),
])
pocket20 = doc.addObject("PartDesign::Pocket", "Pocket019")
body.addObject(pocket20)
pocket20.Profile = sketch21
pocket20.Type = "UpToFirst"
pocket20.Reversed = True

# Sketch on XZ plane
sketch22 = doc.addObject("Sketcher::SketchObject", "Sketch021")
body.addObject(sketch22)
sketch22.AttachmentSupport = (doc.XZ_Plane, [""])
sketch22.MapMode = "FlatFace"
sketch22.AttachmentOffset = App.Placement(App.Vector(0, 0, -5.5), App.Rotation())
sketch22.addGeometry(Part.Circle(App.Vector(-33.5, 120.5, 0), App.Vector(0, 0, 1), 1.9), False)
sketch22.addConstraint([
    Sketcher.Constraint("Diameter", 0, 3.8),
    Sketcher.Constraint("DistanceX", 0, 3, -1, 1, 33.5),
    Sketcher.Constraint("DistanceY", -1, 1, 0, 3, 120.5),
])
pocket21 = doc.addObject("PartDesign::Pocket", "Pocket020")
body.addObject(pocket21)
pocket21.Profile = sketch22
pocket21.Type = "UpToFirst"
pocket21.Reversed = True

# Sketch on XZ plane
sketch23 = doc.addObject("Sketcher::SketchObject", "Sketch022")
body.addObject(sketch23)
sketch23.AttachmentSupport = (doc.XZ_Plane, [""])
sketch23.MapMode = "FlatFace"
sketch23.AttachmentOffset = App.Placement(App.Vector(0, 0, -5.5), App.Rotation())
sketch23.addGeometry(Part.Circle(App.Vector(-42.5, 44, 0), App.Vector(0, 0, 1), 1.75), False)
sketch23.addConstraint([
    Sketcher.Constraint("Diameter", 0, 3.5),
    Sketcher.Constraint("DistanceY", -1, 1, 0, 3, 44.0),
    Sketcher.Constraint("DistanceX", 0, 3, -1, 1, 42.5),
])
pocket22 = doc.addObject("PartDesign::Pocket", "Pocket021")
body.addObject(pocket22)
pocket22.Profile = sketch23
pocket22.Type = "UpToFirst"
pocket22.Reversed = True

# Sketch on XZ plane
sketch24 = doc.addObject("Sketcher::SketchObject", "Sketch023")
body.addObject(sketch24)
sketch24.AttachmentSupport = (doc.XZ_Plane, [""])
sketch24.MapMode = "FlatFace"
sketch24.AttachmentOffset = App.Placement(App.Vector(0, 0, -5.5), App.Rotation())
sketch24.addGeometry(Part.Circle(App.Vector(42.5, 44, 0), App.Vector(0, 0, 1), 1.75), False)
sketch24.addConstraint([
    Sketcher.Constraint("Diameter", 0, 3.5),
    Sketcher.Constraint("DistanceY", -1, 1, 0, 3, 44.0),
    Sketcher.Constraint("DistanceX", -1, 1, 0, 3, 42.5),
])
pocket23 = doc.addObject("PartDesign::Pocket", "Pocket022")
body.addObject(pocket23)
pocket23.Profile = sketch24
pocket23.Type = "UpToFirst"
pocket23.Reversed = True

# Sketch on XZ plane
sketch25 = doc.addObject("Sketcher::SketchObject", "Sketch024")
body.addObject(sketch25)
sketch25.AttachmentSupport = (doc.XZ_Plane, [""])
sketch25.MapMode = "FlatFace"
sketch25.AttachmentOffset = App.Placement(App.Vector(0, 0, -5.5), App.Rotation())
sketch25.addGeometry(Part.Circle(App.Vector(-15, -60.5, 0), App.Vector(0, 0, 1), 1.75), False)
sketch25.addConstraint([
    Sketcher.Constraint("Diameter", 0, 3.5),
    Sketcher.Constraint("DistanceX", 0, 3, -1, 1, 15.0),
    Sketcher.Constraint("DistanceY", 0, 3, -1, 1, 60.5),
])
pocket24 = doc.addObject("PartDesign::Pocket", "Pocket023")
body.addObject(pocket24)
pocket24.Profile = sketch25
pocket24.Type = "UpToFirst"
pocket24.Reversed = True

# Sketch on XZ plane
sketch26 = doc.addObject("Sketcher::SketchObject", "Sketch025")
body.addObject(sketch26)
sketch26.AttachmentSupport = (doc.XZ_Plane, [""])
sketch26.MapMode = "FlatFace"
sketch26.AttachmentOffset = App.Placement(App.Vector(0, 0, -5.5), App.Rotation())
sketch26.addGeometry(Part.Circle(App.Vector(15, -60.5, 0), App.Vector(0, 0, 1), 1.75), False)
sketch26.addConstraint([
    Sketcher.Constraint("Diameter", 0, 3.5),
    Sketcher.Constraint("DistanceX", -1, 1, 0, 3, 15.0),
    Sketcher.Constraint("DistanceY", 0, 3, -1, 1, 60.5),
])
pocket25 = doc.addObject("PartDesign::Pocket", "Pocket024")
body.addObject(pocket25)
pocket25.Profile = sketch26
pocket25.Type = "UpToFirst"
pocket25.Reversed = True

# Sketch on XZ plane
sketch27 = doc.addObject("Sketcher::SketchObject", "Sketch026")
body.addObject(sketch27)
sketch27.AttachmentSupport = (doc.XZ_Plane, [""])
sketch27.MapMode = "FlatFace"
sketch27.AttachmentOffset = App.Placement(App.Vector(0, 0, -5.5), App.Rotation())
sketch27.addGeometry([
    Part.Circle(App.Vector(-15, -60.5, 0), App.Vector(0, 0, 1), 3),
    Part.Circle(App.Vector(15, -60.5, 0), App.Vector(0, 0, 1), 3),
], False)
sketch27.addConstraint([
    Sketcher.Constraint("Equal", 0, 1),
    Sketcher.Constraint("Symmetric", 0, 3, 1, 3, -2),
    Sketcher.Constraint("Diameter", 0, 6.0),
    Sketcher.Constraint("DistanceX", 0, 3, -1, 1, 15.0),
    Sketcher.Constraint("DistanceY", 0, 3, -1, 1, 60.5),
])
pocket26 = doc.addObject("PartDesign::Pocket", "Pocket025")
body.addObject(pocket26)
pocket26.Profile = sketch27
pocket26.Length = 3.7
pocket26.Reversed = True
doc.recompute()

chamfer = doc.addObject("PartDesign::Chamfer", "Chamfer")
body.addObject(chamfer)
chamfer.Base = (pocket26, edges_at(pocket26, [(-50.5, 0, 84)]))
chamfer.Size = 4

doc.recompute()
